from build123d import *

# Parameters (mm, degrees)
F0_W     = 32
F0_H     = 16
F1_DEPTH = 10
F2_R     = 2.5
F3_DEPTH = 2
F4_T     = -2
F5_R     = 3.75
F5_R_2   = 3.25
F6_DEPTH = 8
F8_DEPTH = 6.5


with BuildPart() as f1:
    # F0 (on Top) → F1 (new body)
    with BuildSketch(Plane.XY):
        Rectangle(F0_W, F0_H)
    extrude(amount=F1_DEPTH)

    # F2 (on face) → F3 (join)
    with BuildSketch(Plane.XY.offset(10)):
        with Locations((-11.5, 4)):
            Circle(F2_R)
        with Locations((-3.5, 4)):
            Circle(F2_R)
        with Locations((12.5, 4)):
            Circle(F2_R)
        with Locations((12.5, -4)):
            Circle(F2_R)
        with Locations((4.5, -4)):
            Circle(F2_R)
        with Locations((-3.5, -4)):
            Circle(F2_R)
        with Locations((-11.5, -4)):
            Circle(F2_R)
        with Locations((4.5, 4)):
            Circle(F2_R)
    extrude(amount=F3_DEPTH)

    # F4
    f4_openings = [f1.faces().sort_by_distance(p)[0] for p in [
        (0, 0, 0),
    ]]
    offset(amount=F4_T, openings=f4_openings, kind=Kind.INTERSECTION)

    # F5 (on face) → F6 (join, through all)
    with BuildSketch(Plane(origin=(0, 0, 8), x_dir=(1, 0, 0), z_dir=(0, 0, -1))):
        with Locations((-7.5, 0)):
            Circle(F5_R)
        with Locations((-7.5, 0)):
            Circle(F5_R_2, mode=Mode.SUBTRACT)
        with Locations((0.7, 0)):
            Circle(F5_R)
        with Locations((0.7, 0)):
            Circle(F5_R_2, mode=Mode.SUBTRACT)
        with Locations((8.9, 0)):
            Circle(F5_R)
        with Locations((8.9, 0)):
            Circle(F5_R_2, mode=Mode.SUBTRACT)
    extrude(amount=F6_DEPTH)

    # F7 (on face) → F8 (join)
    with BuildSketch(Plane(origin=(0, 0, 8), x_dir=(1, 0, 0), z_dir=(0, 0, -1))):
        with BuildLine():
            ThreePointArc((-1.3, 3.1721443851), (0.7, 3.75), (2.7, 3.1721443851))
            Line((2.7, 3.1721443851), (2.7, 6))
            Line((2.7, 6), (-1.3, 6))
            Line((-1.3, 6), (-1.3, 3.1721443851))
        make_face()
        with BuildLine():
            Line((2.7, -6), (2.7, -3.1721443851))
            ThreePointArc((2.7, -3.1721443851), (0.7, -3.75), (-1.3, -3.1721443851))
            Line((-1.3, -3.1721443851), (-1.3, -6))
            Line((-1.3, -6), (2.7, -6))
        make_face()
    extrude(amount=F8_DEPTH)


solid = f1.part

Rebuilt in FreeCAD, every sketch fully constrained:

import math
import FreeCAD as App
import Part
import Sketcher

V = App.Vector


def faces_at(feature, points):
    """Names of the faces that lie closest to the given points."""
    faces = feature.Shape.Faces
    near = lambda p: min(range(len(faces)), key=lambda i: faces[i].distToShape(Part.Vertex(*p))[0])
    return sorted({f"Face{near(p) + 1}" for p in points})


def add_polygon(sketch, points):
    """Adds a closed chain of lines whose ends are joined by coincident constraints."""
    first, n = sketch.GeometryCount, len(points)
    for a, b in zip(points, points[1:] + points[:1]):
        sketch.addGeometry(Part.LineSegment(App.Vector(*a, 0), App.Vector(*b, 0)), False)
    for i in range(n):
        sketch.addConstraint(Sketcher.Constraint("Coincident", first + i, 2, first + (i + 1) % n, 1))

doc = App.newDocument("Part")
params = doc.addObject("Spreadsheet::Sheet", "Params")
for row, (alias, value) in enumerate([
    ("sketch1_width", "32 mm"),
    ("sketch1_height", "16 mm"),
    ("pad1_length", "10 mm"),
    ("sketch2_diameter", "5 mm"),
    ("pad2_length", "2 mm"),
    ("thickness_wall", "2 mm"),
    ("sketch3_diameter", "7.5 mm"),
    ("sketch3_diameter2", "6.5 mm"),
    ("pad3_length", "8 mm"),
    ("sketch4_width", "4 mm"),
    ("sketch4_radius", "3.75 mm"),
    ("pad4_length", "6.5 mm"),
], start=1):
    params.set(f"A{row}", alias)
    params.set(f"B{row}", "=" + value)
    params.setAlias(f"B{row}", alias)

body = doc.addObject("PartDesign::Body", "Body")

sketch1 = body.newObject("Sketcher::SketchObject", "Sketch")
sketch1.AttachmentSupport = (doc.getObject("XY_Plane"), [""])
sketch1.MapMode = "FlatFace"
add_polygon(sketch1, [(-16, 8), (-16, -8), (16, -8), (16, 8)])
sketch1.addConstraint([
    Sketcher.Constraint("Vertical", 0),
    Sketcher.Constraint("Horizontal", 1),
    Sketcher.Constraint("Vertical", 2),
    Sketcher.Constraint("Horizontal", 3),
    Sketcher.Constraint("Symmetric", 0, 2, 2, 2, -1, 1),
    Sketcher.Constraint("DistanceX", 1, 1, 1, 2, 32.0),
    Sketcher.Constraint("DistanceY", 0, 2, 0, 1, 16.0),
])
sketch1.setExpression("Constraints[9]", "Params.sketch1_width")
sketch1.setExpression("Constraints[10]", "Params.sketch1_height")
pad1 = body.newObject("PartDesign::Pad", "Pad")
pad1.Profile = sketch1
pad1.setExpression("Length", "Params.pad1_length")

sketch2 = body.newObject("Sketcher::SketchObject", "Sketch001")
sketch2.AttachmentSupport = (doc.getObject("XY_Plane"), [""])
sketch2.MapMode = "FlatFace"
sketch2.AttachmentOffset = App.Placement(V(0, 0, 10), App.Rotation())
sketch2.addGeometry([
    Part.Circle(V(-11.5, 4, 0), V(0, 0, 1), 2.5),
    Part.Circle(V(-3.5, 4, 0), V(0, 0, 1), 2.5),
    Part.Circle(V(12.5, 4, 0), V(0, 0, 1), 2.5),
    Part.Circle(V(12.5, -4, 0), V(0, 0, 1), 2.5),
    Part.Circle(V(4.5, -4, 0), V(0, 0, 1), 2.5),
    Part.Circle(V(-3.5, -4, 0), V(0, 0, 1), 2.5),
    Part.Circle(V(-11.5, -4, 0), V(0, 0, 1), 2.5),
    Part.Circle(V(4.5, 4, 0), V(0, 0, 1), 2.5),
], False)
sketch2.addConstraint([
    Sketcher.Constraint("Equal", 0, 1),
    Sketcher.Constraint("Equal", 1, 2),
    Sketcher.Constraint("Equal", 2, 3),
    Sketcher.Constraint("Equal", 3, 4),
    Sketcher.Constraint("Equal", 4, 5),
    Sketcher.Constraint("Equal", 5, 6),
    Sketcher.Constraint("Equal", 6, 7),
    Sketcher.Constraint("Symmetric", 2, 3, 3, 3, -1),
    Sketcher.Constraint("Symmetric", 1, 3, 5, 3, -1),
    Sketcher.Constraint("Symmetric", 0, 3, 6, 3, -1),
    Sketcher.Constraint("Symmetric", 4, 3, 7, 3, -1),
    Sketcher.Constraint("Horizontal", 0, 3, 1, 3),
    Sketcher.Constraint("Horizontal", 1, 3, 2, 3),
    Sketcher.Constraint("Horizontal", 3, 3, 4, 3),
    Sketcher.Constraint("Diameter", 0, 5.0),
    Sketcher.Constraint("DistanceY", -1, 1, 0, 3, 4.0),
    Sketcher.Constraint("DistanceX", 0, 3, 1, 3, 8.0),
    Sketcher.Constraint("DistanceX", 1, 3, 2, 3, 16.0),
    Sketcher.Constraint("DistanceX", 4, 3, 3, 3, 8.0),
    Sketcher.Constraint("DistanceX", 0, 3, -1, 1, 11.5),
])
sketch2.setExpression("Constraints[14]", "Params.sketch2_diameter")
pad2 = body.newObject("PartDesign::Pad", "Pad001")
pad2.Profile = sketch2
pad2.setExpression("Length", "Params.pad2_length")
doc.recompute()

thickness = body.newObject("PartDesign::Thickness", "Thickness")
thickness.Base = (pad2, faces_at(pad2, [(0, 0, 0)]))
thickness.setExpression("Value", "Params.thickness_wall")
thickness.Reversed = True
thickness.Join = "Intersection"

sketch3 = body.newObject("Sketcher::SketchObject", "Sketch002")
sketch3.AttachmentSupport = (doc.getObject("XY_Plane"), [""])
sketch3.MapMode = "FlatFace"
sketch3.AttachmentOffset = App.Placement(V(0, 0, 8), App.Rotation())
sketch3.addGeometry([
    Part.Circle(V(-7.5, 0, 0), V(0, 0, 1), 3.8),
    Part.Circle(V(-7.5, 0, 0), V(0, 0, 1), 3.2),
    Part.Circle(V(0.7, 0, 0), V(0, 0, 1), 3.8),
    Part.Circle(V(0.7, 0, 0), V(0, 0, 1), 3.2),
    Part.Circle(V(8.9, 0, 0), V(0, 0, 1), 3.8),
    Part.Circle(V(8.9, 0, 0), V(0, 0, 1), 3.2),
], False)
sketch3.addConstraint([
    Sketcher.Constraint("Coincident", 1, 3, 0, 3),
    Sketcher.Constraint("Coincident", 3, 3, 2, 3),
    Sketcher.Constraint("Coincident", 5, 3, 4, 3),
    Sketcher.Constraint("Equal", 0, 2),
    Sketcher.Constraint("Equal", 1, 3),
    Sketcher.Constraint("Equal", 2, 4),
    Sketcher.Constraint("Equal", 3, 5),
    Sketcher.Constraint("PointOnObject", 0, 3, -1),
    Sketcher.Constraint("PointOnObject", 2, 3, -1),
    Sketcher.Constraint("PointOnObject", 4, 3, -1),
    Sketcher.Constraint("Diameter", 0, 7.5),
    Sketcher.Constraint("Diameter", 1, 6.5),
    Sketcher.Constraint("DistanceX", 0, 3, -1, 1, 7.5),
    Sketcher.Constraint("DistanceX", -1, 1, 2, 3, 0.7),
    Sketcher.Constraint("DistanceX", -1, 1, 4, 3, 8.9),
])
sketch3.setExpression("Constraints[10]", "Params.sketch3_diameter")
sketch3.setExpression("Constraints[11]", "Params.sketch3_diameter2")
pad3 = body.newObject("PartDesign::Pad", "Pad002")
pad3.Profile = sketch3
pad3.setExpression("Length", "Params.pad3_length")
pad3.Reversed = True

sketch4 = body.newObject("Sketcher::SketchObject", "Sketch003")
sketch4.AttachmentSupport = (doc.getObject("XY_Plane"), [""])
sketch4.MapMode = "FlatFace"
sketch4.AttachmentOffset = App.Placement(V(0, 0, 8), App.Rotation())
sketch4.addGeometry([
    Part.ArcOfCircle(Part.Circle(V(0.7, 0, 0), V(0, 0, 1), 3.8), math.radians(-122), math.radians(-58)),
    Part.LineSegment(V(2.7, -3.2, 0), V(2.7, -6, 0)),
    Part.LineSegment(V(2.7, -6, 0), V(-1.3, -6, 0)),
    Part.LineSegment(V(-1.3, -6, 0), V(-1.3, -3.2, 0)),
    Part.LineSegment(V(2.7, 6, 0), V(2.7, 3.2, 0)),
    Part.ArcOfCircle(Part.Circle(V(0.7, 0, 0), V(0, 0, 1), 3.8), math.radians(58), math.radians(122)),
    Part.LineSegment(V(-1.3, 3.2, 0), V(-1.3, 6, 0)),
    Part.LineSegment(V(-1.3, 6, 0), V(2.7, 6, 0)),
], False)
sketch4.addConstraint([
    Sketcher.Constraint("Coincident", 0, 2, 1, 1),
    Sketcher.Constraint("Coincident", 1, 2, 2, 1),
    Sketcher.Constraint("Coincident", 2, 2, 3, 1),
    Sketcher.Constraint("Coincident", 3, 2, 0, 1),
    Sketcher.Constraint("Coincident", 4, 2, 5, 1),
    Sketcher.Constraint("Coincident", 5, 2, 6, 1),
    Sketcher.Constraint("Coincident", 6, 2, 7, 1),
    Sketcher.Constraint("Coincident", 7, 2, 4, 1),
    Sketcher.Constraint("Vertical", 1),
    Sketcher.Constraint("Horizontal", 2),
    Sketcher.Constraint("Vertical", 3),
    Sketcher.Constraint("Vertical", 4),
    Sketcher.Constraint("Vertical", 6),
    Sketcher.Constraint("Horizontal", 7),
    Sketcher.Constraint("Coincident", 5, 3, 0, 3),
    Sketcher.Constraint("Equal", 0, 5),
    Sketcher.Constraint("Symmetric", 0, 2, 4, 2, -1),
    Sketcher.Constraint("Symmetric", 2, 2, 6, 2, -1),
    Sketcher.Constraint("Horizontal", 0, 2, 3, 2),
    Sketcher.Constraint("DistanceX", 2, 2, 2, 1, 4.0),
    Sketcher.Constraint("Radius", 0, 3.75),
    Sketcher.Constraint("DistanceY", 1, 2, -1, 1, 6.0),
    Sketcher.Constraint("DistanceX", -1, 1, 0, 3, 0.7),
])
sketch4.setExpression("Constraints[19]", "Params.sketch4_width")
sketch4.setExpression("Constraints[20]", "Params.sketch4_radius")
pad4 = body.newObject("PartDesign::Pad", "Pad003")
pad4.Profile = sketch4
pad4.setExpression("Length", "Params.pad4_length")
pad4.Reversed = True

doc.recompute()
